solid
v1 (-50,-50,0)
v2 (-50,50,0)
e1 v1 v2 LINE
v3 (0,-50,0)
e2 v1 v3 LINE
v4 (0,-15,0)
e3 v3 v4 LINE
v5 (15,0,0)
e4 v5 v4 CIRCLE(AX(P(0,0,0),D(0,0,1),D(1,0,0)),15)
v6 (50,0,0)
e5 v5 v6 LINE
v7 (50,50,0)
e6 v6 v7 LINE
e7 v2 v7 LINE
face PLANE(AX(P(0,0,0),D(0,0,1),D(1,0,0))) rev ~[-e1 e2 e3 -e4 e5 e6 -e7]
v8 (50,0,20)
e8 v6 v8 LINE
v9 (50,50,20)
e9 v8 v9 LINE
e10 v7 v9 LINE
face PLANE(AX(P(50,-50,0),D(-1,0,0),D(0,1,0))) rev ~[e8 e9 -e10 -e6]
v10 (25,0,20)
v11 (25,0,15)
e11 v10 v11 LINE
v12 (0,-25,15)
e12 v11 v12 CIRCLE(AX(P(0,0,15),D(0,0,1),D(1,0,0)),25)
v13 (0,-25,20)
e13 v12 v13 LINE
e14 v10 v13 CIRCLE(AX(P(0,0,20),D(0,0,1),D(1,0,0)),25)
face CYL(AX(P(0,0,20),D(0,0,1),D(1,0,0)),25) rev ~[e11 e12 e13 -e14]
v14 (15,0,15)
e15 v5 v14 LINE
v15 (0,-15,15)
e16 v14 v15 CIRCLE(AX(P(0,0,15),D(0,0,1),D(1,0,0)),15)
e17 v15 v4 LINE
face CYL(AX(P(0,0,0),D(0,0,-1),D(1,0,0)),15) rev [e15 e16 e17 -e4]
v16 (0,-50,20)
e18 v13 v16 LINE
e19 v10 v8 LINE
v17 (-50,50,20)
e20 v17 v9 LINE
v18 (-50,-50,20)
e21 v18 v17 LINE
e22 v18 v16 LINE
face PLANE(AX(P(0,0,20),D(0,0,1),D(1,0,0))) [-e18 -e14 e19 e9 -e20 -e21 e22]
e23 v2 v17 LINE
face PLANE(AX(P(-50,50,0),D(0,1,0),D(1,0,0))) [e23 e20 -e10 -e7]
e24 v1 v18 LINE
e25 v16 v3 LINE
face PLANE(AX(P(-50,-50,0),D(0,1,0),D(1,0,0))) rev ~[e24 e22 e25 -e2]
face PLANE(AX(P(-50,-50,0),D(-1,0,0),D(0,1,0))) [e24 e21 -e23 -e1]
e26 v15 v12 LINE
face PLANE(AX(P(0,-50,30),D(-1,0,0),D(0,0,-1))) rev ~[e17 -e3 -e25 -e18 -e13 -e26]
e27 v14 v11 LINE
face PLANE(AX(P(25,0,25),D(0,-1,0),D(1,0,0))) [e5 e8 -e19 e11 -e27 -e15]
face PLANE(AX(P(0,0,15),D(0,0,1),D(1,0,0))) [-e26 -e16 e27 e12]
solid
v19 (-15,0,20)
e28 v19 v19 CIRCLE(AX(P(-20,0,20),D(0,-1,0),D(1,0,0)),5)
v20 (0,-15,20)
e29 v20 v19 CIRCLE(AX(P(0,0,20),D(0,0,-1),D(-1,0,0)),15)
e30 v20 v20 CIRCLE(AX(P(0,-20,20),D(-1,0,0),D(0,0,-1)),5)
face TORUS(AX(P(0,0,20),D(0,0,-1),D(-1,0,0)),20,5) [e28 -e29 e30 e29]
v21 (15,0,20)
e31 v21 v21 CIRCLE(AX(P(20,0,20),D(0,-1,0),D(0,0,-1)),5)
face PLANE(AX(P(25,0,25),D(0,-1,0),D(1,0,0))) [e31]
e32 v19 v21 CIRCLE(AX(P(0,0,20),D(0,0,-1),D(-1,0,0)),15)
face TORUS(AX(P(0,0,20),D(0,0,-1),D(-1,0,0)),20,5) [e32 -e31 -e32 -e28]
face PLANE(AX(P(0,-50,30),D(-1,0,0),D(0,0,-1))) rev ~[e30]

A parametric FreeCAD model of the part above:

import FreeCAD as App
import Part
import Sketcher
from FreeCAD import Vector
Q = App.Units.Quantity

doc = App.newDocument("Part")
body = doc.addObject("PartDesign::Body", "Body")

# Sketch on XY plane
sketch1 = body.newObject("Sketcher::SketchObject", "Sketch")
sketch1.AttachmentSupport = (doc.getObject("XY_Plane"), [""])
sketch1.MapMode = "FlatFace"
sketch1.addGeometry([
    Part.LineSegment(Vector(-50, 50, 0), Vector(-50, -50, 0)),  # 0
    Part.LineSegment(Vector(-50, -50, 0), Vector(50, -50, 0)),  # 1
    Part.LineSegment(Vector(50, -50, 0), Vector(50, 50, 0)),  # 2
    Part.LineSegment(Vector(50, 50, 0), Vector(-50, 50, 0)),  # 3
    Part.Circle(Vector(0, 0, 0), Vector(0, 0, 1), 15),  # 4
], False)
sketch1.addConstraint([
    Sketcher.Constraint("Coincident", 0, 2, 1, 1),
    Sketcher.Constraint("Coincident", 1, 2, 2, 1),
    Sketcher.Constraint("Coincident", 2, 2, 3, 1),
    Sketcher.Constraint("Coincident", 3, 2, 0, 1),
    Sketcher.Constraint("Vertical", 0),
    Sketcher.Constraint("Horizontal", 1),
    Sketcher.Constraint("Vertical", 2),
    Sketcher.Constraint("Horizontal", 3),
    Sketcher.Constraint("Coincident", 4, 3, -1, 1),
    Sketcher.Constraint("Symmetric", 0, 2, 2, 2, -1, 1),
    Sketcher.Constraint("Equal", 3, 0),
    Sketcher.Constraint("Diameter", 4, Q("30 mm")),
    Sketcher.Constraint("DistanceX", 1, 1, 1, 2, Q("100 mm")),
])
pad1 = body.newObject("PartDesign::Pad", "Pad")
pad1.Profile = sketch1
pad1.Length = 20

# Sketch on XY plane
sketch2 = body.newObject("Sketcher::SketchObject", "Sketch001")
sketch2.AttachmentSupport = (doc.getObject("XY_Plane"), [""])
sketch2.MapMode = "FlatFace"
sketch2.AttachmentOffset = App.Placement(Vector(0, 0, 20), App.Rotation())
sketch2.addGeometry([
    Part.Circle(Vector(0, 0, 0), Vector(0, 0, 1), 25),
    Part.Circle(Vector(0, 0, 0), Vector(0, 0, 1), 15),
], False)
sketch2.addConstraint([
    Sketcher.Constraint("Coincident", 0, 3, -1, 1),
    Sketcher.Constraint("Coincident", 1, 3, -1, 1),
    Sketcher.Constraint("Diameter", 0, Q("50 mm")),
    Sketcher.Constraint("Diameter", 1, Q("30 mm")),
])
pocket1 = body.newObject("PartDesign::Pocket", "Pocket")
pocket1.Profile = sketch2
pocket1.Length = 5
body2 = doc.addObject("PartDesign::Body", "Body001")

# Sketch on XZ plane
sketch3 = body2.newObject("Sketcher::SketchObject", "Sketch002")
sketch3.AttachmentSupport = (doc.getObject("XZ_Plane001"), [""])
sketch3.MapMode = "FlatFace"
sketch3.addGeometry(Part.Circle(Vector(-20, 20, 0), Vector(0, 0, 1), 5), False)
sketch3.addConstraint([
    Sketcher.Constraint("Diameter", 0, Q("10 mm")),
    Sketcher.Constraint("DistanceX", 0, 3, -1, 1, Q("20 mm")),
    Sketcher.Constraint("DistanceY", -1, 1, 0, 3, Q("20 mm")),
])
revolution = body2.newObject("PartDesign::Revolution", "Revolution")
revolution.Profile = sketch3
revolution.ReferenceAxis = (sketch3, ["V_Axis"])
revolution.Angle = 360
body3 = doc.addObject("PartDesign::Body", "Body002")

# Sketch on XZ plane
sketch4 = body3.newObject("Sketcher::SketchObject", "Sketch003")
sketch4.AttachmentSupport = (doc.getObject("XZ_Plane002"), [""])
sketch4.MapMode = "FlatFace"
sketch4.AttachmentOffset = App.Placement(Vector(0, 0, 50), App.Rotation())
sketch4.addGeometry([
    Part.LineSegment(Vector(0, 30, 0), Vector(0, 0, 0)),
    Part.LineSegment(Vector(0, 0, 0), Vector(50, 0, 0)),
    Part.LineSegment(Vector(50, 0, 0), Vector(50, 30, 0)),
    Part.LineSegment(Vector(50, 30, 0), Vector(0, 30, 0)),
], False)
sketch4.addConstraint([
    Sketcher.Constraint("Coincident", 0, 2, 1, 1),
    Sketcher.Constraint("Coincident", 1, 2, 2, 1),
    Sketcher.Constraint("Coincident", 2, 2, 3, 1),
    Sketcher.Constraint("Coincident", 3, 2, 0, 1),
    Sketcher.Constraint("Vertical", 0),
    Sketcher.Constraint("Horizontal", 1),
    Sketcher.Constraint("Vertical", 2),
    Sketcher.Constraint("Horizontal", 3),
    Sketcher.Constraint("Coincident", 0, 2, -1, 1),
    Sketcher.Constraint("DistanceX", 1, 1, 1, 2, Q("50 mm")),
    Sketcher.Constraint("DistanceY", 0, 2, 0, 1, Q("30 mm")),
])
pad2 = body3.newObject("PartDesign::Pad", "Pad001")
pad2.Profile = sketch4
pad2.Length = 50
pad2.Reversed = True
doc.recompute()

body4 = doc.addObject("PartDesign::Body", "Body003")
body4.BaseFeature = body3
boolean = body.newObject("PartDesign::Boolean", "Boolean")
boolean.Type = "Cut"
boolean.addObjects([body4])
doc.recompute()

boolean2 = body2.newObject("PartDesign::Boolean", "Boolean001")
boolean2.Type = "Cut"
boolean2.addObjects([body3])

doc.recompute()
